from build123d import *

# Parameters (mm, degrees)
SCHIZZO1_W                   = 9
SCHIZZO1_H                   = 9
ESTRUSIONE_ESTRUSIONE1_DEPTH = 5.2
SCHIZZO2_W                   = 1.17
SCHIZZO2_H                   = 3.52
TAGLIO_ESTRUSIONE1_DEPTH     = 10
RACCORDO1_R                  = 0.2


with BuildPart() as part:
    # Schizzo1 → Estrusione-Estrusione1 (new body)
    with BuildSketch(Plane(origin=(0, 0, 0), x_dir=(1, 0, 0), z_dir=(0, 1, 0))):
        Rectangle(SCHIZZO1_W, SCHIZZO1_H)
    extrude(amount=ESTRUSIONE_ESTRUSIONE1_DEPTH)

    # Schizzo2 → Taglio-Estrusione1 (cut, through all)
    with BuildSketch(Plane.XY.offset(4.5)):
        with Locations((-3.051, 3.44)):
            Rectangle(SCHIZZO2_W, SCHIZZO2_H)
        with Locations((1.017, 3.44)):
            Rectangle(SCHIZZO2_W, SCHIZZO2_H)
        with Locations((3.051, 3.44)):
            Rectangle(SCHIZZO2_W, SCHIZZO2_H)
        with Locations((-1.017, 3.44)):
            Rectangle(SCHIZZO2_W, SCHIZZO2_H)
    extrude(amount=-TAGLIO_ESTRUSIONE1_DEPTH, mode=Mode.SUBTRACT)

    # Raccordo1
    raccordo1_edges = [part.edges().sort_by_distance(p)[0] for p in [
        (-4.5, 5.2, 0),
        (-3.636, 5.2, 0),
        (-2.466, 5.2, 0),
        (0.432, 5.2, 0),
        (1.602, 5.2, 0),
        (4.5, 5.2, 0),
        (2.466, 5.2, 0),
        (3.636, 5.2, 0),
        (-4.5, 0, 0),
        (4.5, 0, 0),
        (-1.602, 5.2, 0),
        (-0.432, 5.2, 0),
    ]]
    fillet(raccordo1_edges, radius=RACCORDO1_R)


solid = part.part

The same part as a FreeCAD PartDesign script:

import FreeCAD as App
import Part
import Sketcher
from FreeCAD import Vector
Q = App.Units.Quantity


def edges_at(feature, points):
    """Names of the edges that pass closest to the given points."""
    edges = feature.Shape.Edges
    near = lambda p: min(range(len(edges)), key=lambda i: edges[i].distToShape(Part.Vertex(*p))[0])
    return sorted({f"Edge{near(p) + 1}" for p in points})

doc = App.newDocument("Part")
params = doc.addObject("Spreadsheet::Sheet", "Params")
for row, (alias, value) in enumerate([
    ("sketch1_width", "9 mm"),
    ("pad1_length", "5.2 mm"),
    ("sketch2_width", "1.17 mm"),
    ("sketch2_height", "3.52 mm"),
    ("fillet_radius", "0.2 mm"),
], start=1):
    params.set(f"A{row}", alias)
    params.set(f"B{row}", "=" + value)
    params.setAlias(f"B{row}", alias)

body = doc.addObject("PartDesign::Body", "Body")

# Sketch on XZ plane
sketch1 = body.newObject("Sketcher::SketchObject", "Sketch")
sketch1.AttachmentSupport = (doc.getObject("XZ_Plane"), [""])
sketch1.MapMode = "FlatFace"
sketch1.addGeometry(Part.LineSegment(Vector(-4, -4, 0), Vector(-4, 4, 0)), False)
sketch1.addGeometry(Part.LineSegment(Vector(-4, 4, 0), Vector(4, 4, 0)), False)
sketch1.addGeometry(Part.LineSegment(Vector(4, 4, 0), Vector(4, -4, 0)), False)
sketch1.addGeometry(Part.LineSegment(Vector(4, -4, 0), Vector(-4, -4, 0)), False)
sketch1.addConstraint(Sketcher.Constraint("Coincident", 0, 2, 1, 1))
sketch1.addConstraint(Sketcher.Constraint("Coincident", 1, 2, 2, 1))
sketch1.addConstraint(Sketcher.Constraint("Coincident", 2, 2, 3, 1))
sketch1.addConstraint(Sketcher.Constraint("Coincident", 3, 2, 0, 1))
sketch1.addConstraint(Sketcher.Constraint("Vertical", 0))
sketch1.addConstraint(Sketcher.Constraint("Horizontal", 1))
sketch1.addConstraint(Sketcher.Constraint("Vertical", 2))
sketch1.addConstraint(Sketcher.Constraint("Horizontal", 3))
sketch1.addConstraint(Sketcher.Constraint("Symmetric", 0, 2, 2, 2, -1, 1))
sketch1.addConstraint(Sketcher.Constraint("Equal", 3, 0))
sketch1.addConstraint(Sketcher.Constraint("DistanceX", 1, 1, 1, 2, Q("9 mm")))
sketch1.setExpression("Constraints[10]", "Params.sketch1_width")
pad1 = body.newObject("PartDesign::Pad", "Pad")
pad1.Profile = sketch1
pad1.setExpression("Length", "Params.pad1_length")
pad1.Reversed = True

# Sketch on XY plane
sketch2 = body.newObject("Sketcher::SketchObject", "Sketch001")
sketch2.AttachmentSupport = (doc.getObject("XY_Plane"), [""])
sketch2.MapMode = "FlatFace"
sketch2.AttachmentOffset = App.Placement(Vector(0, 0, 4.5), App.Rotation())
sketch2.addGeometry(Part.LineSegment(Vector(-3.6, 5.2, 0), Vector(-3.6, 1.7, 0)), False)
sketch2.addGeometry(Part.LineSegment(Vector(-3.6, 1.7, 0), Vector(-2.5, 1.7, 0)), False)
sketch2.addGeometry(Part.LineSegment(Vector(-2.5, 1.7, 0), Vector(-2.5, 5.2, 0)), False)
sketch2.addGeometry(Part.LineSegment(Vector(-2.5, 5.2, 0), Vector(-3.6, 5.2, 0)), False)
sketch2.addGeometry(Part.LineSegment(Vector(0.4, 5.2, 0), Vector(0.4, 1.7, 0)), False)
sketch2.addGeometry(Part.LineSegment(Vector(0.4, 1.7, 0), Vector(1.6, 1.7, 0)), False)
sketch2.addGeometry(Part.LineSegment(Vector(1.6, 1.7, 0), Vector(1.6, 5.2, 0)), False)
sketch2.addGeometry(Part.LineSegment(Vector(1.6, 5.2, 0), Vector(0.4, 5.2, 0)), False)
sketch2.addGeometry(Part.LineSegment(Vector(2.5, 5.2, 0), Vector(2.5, 1.7, 0)), False)
sketch2.addGeometry(Part.LineSegment(Vector(2.5, 1.7, 0), Vector(3.6, 1.7, 0)), False)
sketch2.addGeometry(Part.LineSegment(Vector(3.6, 1.7, 0), Vector(3.6, 5.2, 0)), False)
sketch2.addGeometry(Part.LineSegment(Vector(3.6, 5.2, 0), Vector(2.5, 5.2, 0)), False)
sketch2.addGeometry(Part.LineSegment(Vector(-1.6, 5.2, 0), Vector(-1.6, 1.7, 0)), False)
sketch2.addGeometry(Part.LineSegment(Vector(-1.6, 1.7, 0), Vector(-0.4, 1.7, 0)), False)
sketch2.addGeometry(Part.LineSegment(Vector(-0.4, 1.7, 0), Vector(-0.4, 5.2, 0)), False)
sketch2.addGeometry(Part.LineSegment(Vector(-0.4, 5.2, 0), Vector(-1.6, 5.2, 0)), False)
sketch2.addConstraint(Sketcher.Constraint("Coincident", 0, 2, 1, 1))
sketch2.addConstraint(Sketcher.Constraint("Coincident", 1, 2, 2, 1))
sketch2.addConstraint(Sketcher.Constraint("Coincident", 2, 2, 3, 1))
sketch2.addConstraint(Sketcher.Constraint("Coincident", 3, 2, 0, 1))
sketch2.addConstraint(Sketcher.Constraint("Coincident", 4, 2, 5, 1))
sketch2.addConstraint(Sketcher.Constraint("Coincident", 5, 2, 6, 1))
sketch2.addConstraint(Sketcher.Constraint("Coincident", 6, 2, 7, 1))
sketch2.addConstraint(Sketcher.Constraint("Coincident", 7, 2, 4, 1))
sketch2.addConstraint(Sketcher.Constraint("Coincident", 8, 2, 9, 1))
sketch2.addConstraint(Sketcher.Constraint("Coincident", 9, 2, 10, 1))
sketch2.addConstraint(Sketcher.Constraint("Coincident", 10, 2, 11, 1))
sketch2.addConstraint(Sketcher.Constraint("Coincident", 11, 2, 8, 1))
sketch2.addConstraint(Sketcher.Constraint("Coincident", 12, 2, 13, 1))
sketch2.addConstraint(Sketcher.Constraint("Coincident", 13, 2, 14, 1))
sketch2.addConstraint(Sketcher.Constraint("Coincident", 14, 2, 15, 1))
sketch2.addConstraint(Sketcher.Constraint("Coincident", 15, 2, 12, 1))
sketch2.addConstraint(Sketcher.Constraint("Vertical", 0))
sketch2.addConstraint(Sketcher.Constraint("Horizontal", 1))
sketch2.addConstraint(Sketcher.Constraint("Vertical", 2))
sketch2.addConstraint(Sketcher.Constraint("Horizontal", 3))
sketch2.addConstraint(Sketcher.Constraint("Vertical", 4))
sketch2.addConstraint(Sketcher.Constraint("Horizontal", 5))
sketch2.addConstraint(Sketcher.Constraint("Vertical", 6))
sketch2.addConstraint(Sketcher.Constraint("Horizontal", 7))
sketch2.addConstraint(Sketcher.Constraint("Vertical", 8))
sketch2.addConstraint(Sketcher.Constraint("Horizontal", 9))
sketch2.addConstraint(Sketcher.Constraint("Vertical", 10))
sketch2.addConstraint(Sketcher.Constraint("Horizontal", 11))
sketch2.addConstraint(Sketcher.Constraint("Vertical", 12))
sketch2.addConstraint(Sketcher.Constraint("Horizontal", 13))
sketch2.addConstraint(Sketcher.Constraint("Vertical", 14))
sketch2.addConstraint(Sketcher.Constraint("Horizontal", 15))
sketch2.addConstraint(Sketcher.Constraint("Symmetric", 1, 2, 8, 2, -2))
sketch2.addConstraint(Sketcher.Constraint("Symmetric", 3, 2, 10, 2, -2))
sketch2.addConstraint(Sketcher.Constraint("Symmetric", 5, 2, 12, 2, -2))
sketch2.addConstraint(Sketcher.Constraint("Symmetric", 7, 2, 14, 2, -2))
sketch2.addConstraint(Sketcher.Constraint("Horizontal", 1, 2, 4, 2))
sketch2.addConstraint(Sketcher.Constraint("Horizontal", 3, 2, 6, 2))
sketch2.addConstraint(Sketcher.Constraint("Equal", 3, 5))
sketch2.addConstraint(Sketcher.Constraint("DistanceX", 1, 1, 1, 2, Q("1.17 mm")))
sketch2.addConstraint(Sketcher.Constraint("DistanceY", 0, 2, 0, 1, Q("3.52 mm")))
sketch2.addConstraint(Sketcher.Constraint("DistanceY", -1, 1, 2, 2, Q("5.2 mm")))
sketch2.addConstraint(Sketcher.Constraint("DistanceX", 0, 2, -1, 1, Q("3.636 mm")))
sketch2.addConstraint(Sketcher.Constraint("DistanceX", -1, 1, 4, 2, Q("0.432 mm")))
sketch2.setExpression("Constraints[39]", "Params.sketch2_width")
sketch2.setExpression("Constraints[40]", "Params.sketch2_height")
pocket1 = body.newObject("PartDesign::Pocket", "Pocket")
pocket1.Profile = sketch2
pocket1.Type = "ThroughAll"
doc.recompute()

fillet = body.newObject("PartDesign::Fillet", "Fillet")
fillet.Base = (pocket1, edges_at(pocket1, [
    (-4.5, 5.2, 0),
    (-3.636, 5.2, 0),
    (-2.466, 5.2, 0),
    (0.432, 5.2, 0),
    (1.602, 5.2, 0),
    (4.5, 5.2, 0),
    (2.466, 5.2, 0),
    (3.636, 5.2, 0),
    (-4.5, 0, 0),
    (4.5, 0, 0),
    (-1.602, 5.2, 0),
    (-0.432, 5.2, 0),
]))
fillet.setExpression("Radius", "Params.fillet_radius")

doc.recompute()
